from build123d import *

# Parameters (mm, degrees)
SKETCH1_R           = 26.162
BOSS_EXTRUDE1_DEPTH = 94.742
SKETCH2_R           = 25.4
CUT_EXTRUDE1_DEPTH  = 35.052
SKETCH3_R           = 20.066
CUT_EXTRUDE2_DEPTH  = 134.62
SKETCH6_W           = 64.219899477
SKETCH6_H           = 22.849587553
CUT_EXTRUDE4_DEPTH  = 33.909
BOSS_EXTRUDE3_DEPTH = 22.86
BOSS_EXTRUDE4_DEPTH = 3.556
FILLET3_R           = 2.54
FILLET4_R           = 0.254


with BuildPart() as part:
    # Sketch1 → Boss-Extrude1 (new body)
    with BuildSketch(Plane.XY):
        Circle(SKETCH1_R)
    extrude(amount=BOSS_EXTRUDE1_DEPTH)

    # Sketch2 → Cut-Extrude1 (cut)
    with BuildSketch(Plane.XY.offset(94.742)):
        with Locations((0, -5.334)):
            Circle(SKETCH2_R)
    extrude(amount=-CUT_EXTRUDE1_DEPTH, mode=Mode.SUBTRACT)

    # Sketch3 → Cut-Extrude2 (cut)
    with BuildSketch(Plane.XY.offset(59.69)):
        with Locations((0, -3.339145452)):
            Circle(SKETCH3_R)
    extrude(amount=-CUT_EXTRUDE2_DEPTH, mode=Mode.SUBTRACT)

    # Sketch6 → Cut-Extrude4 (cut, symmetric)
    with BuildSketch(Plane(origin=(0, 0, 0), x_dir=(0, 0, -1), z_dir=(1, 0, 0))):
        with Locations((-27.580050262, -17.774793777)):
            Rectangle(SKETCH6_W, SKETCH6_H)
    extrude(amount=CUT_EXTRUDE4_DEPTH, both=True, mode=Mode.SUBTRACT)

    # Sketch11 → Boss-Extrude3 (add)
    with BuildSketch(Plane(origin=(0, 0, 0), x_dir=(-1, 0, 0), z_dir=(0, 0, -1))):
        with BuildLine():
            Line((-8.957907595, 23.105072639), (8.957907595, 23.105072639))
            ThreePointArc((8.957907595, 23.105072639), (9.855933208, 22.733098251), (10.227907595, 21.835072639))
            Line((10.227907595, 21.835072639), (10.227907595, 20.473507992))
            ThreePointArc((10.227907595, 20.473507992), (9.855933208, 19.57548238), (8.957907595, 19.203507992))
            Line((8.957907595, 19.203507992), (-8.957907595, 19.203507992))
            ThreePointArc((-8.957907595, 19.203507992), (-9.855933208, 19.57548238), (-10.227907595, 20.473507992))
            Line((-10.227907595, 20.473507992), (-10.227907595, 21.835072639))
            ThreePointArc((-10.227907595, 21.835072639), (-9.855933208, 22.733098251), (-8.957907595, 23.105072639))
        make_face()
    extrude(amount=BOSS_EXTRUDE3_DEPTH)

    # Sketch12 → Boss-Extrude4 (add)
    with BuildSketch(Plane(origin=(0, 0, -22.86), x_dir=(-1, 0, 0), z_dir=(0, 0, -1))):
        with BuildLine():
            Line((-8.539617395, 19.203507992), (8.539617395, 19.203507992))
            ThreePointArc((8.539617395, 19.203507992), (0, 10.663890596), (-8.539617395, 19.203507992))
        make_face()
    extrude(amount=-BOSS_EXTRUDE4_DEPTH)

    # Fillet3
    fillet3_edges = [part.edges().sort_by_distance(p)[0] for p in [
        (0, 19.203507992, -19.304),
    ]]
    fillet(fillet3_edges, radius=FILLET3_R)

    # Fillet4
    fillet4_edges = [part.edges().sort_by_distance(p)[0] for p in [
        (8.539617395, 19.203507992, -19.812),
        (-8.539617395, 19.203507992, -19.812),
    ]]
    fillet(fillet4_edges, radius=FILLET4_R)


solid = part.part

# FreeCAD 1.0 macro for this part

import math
import FreeCAD as App
import Part
import Sketcher
from FreeCAD import Vector
Q = App.Units.Quantity


def edges_at(feature, points):
    """Names of the edges that pass closest to the given points."""
    edges = feature.Shape.Edges
    near = lambda p: min(range(len(edges)), key=lambda i: edges[i].distToShape(Part.Vertex(*p))[0])
    return sorted({f"Edge{near(p) + 1}" for p in points})

doc = App.newDocument("Part")
body = doc.addObject("PartDesign::Body", "Body")

sketch1 = body.newObject("Sketcher::SketchObject", "Sketch")
sketch1.AttachmentSupport = (doc.getObject("XY_Plane"), [""])
sketch1.MapMode = "FlatFace"
sketch1.addGeometry(Part.Circle(Vector(0, 0, 0), Vector(0, 0, 1), 26.162), False)
sketch1.addConstraint([
    Sketcher.Constraint("Coincident", 0, 3, -1, 1),
    Sketcher.Constraint("Diameter", 0, Q("2.06 in")),
])
pad1 = body.newObject("PartDesign::Pad", "Pad")
pad1.Profile = sketch1
pad1.Length = Q("3.73 in")

sketch2 = body.newObject("Sketcher::SketchObject", "Sketch001")
sketch2.AttachmentSupport = (doc.getObject("XY_Plane"), [""])
sketch2.MapMode = "FlatFace"
sketch2.AttachmentOffset = App.Placement(Vector(0, 0, 3.73 * 25.4), App.Rotation())
sketch2.addGeometry(Part.Circle(Vector(0, -5.334, 0), Vector(0, 0, 1), 25.4), False)
sketch2.addConstraint([
    Sketcher.Constraint("PointOnObject", 0, 3, -2),
    Sketcher.Constraint("Diameter", 0, Q("2 in")),
    Sketcher.Constraint("DistanceY", 0, 3, -1, 1, Q("0.21 in")),
])
pocket1 = body.newObject("PartDesign::Pocket", "Pocket")
pocket1.Profile = sketch2
pocket1.Length = Q("1.38 in")

sketch3 = body.newObject("Sketcher::SketchObject", "Sketch002")
sketch3.AttachmentSupport = (doc.getObject("XY_Plane"), [""])
sketch3.MapMode = "FlatFace"
sketch3.AttachmentOffset = App.Placement(Vector(0, 0, 2.35 * 25.4), App.Rotation())
sketch3.addGeometry(Part.Circle(Vector(0, -3.339145, 0), Vector(0, 0, 1), 20.066), False)
sketch3.addConstraint([
    Sketcher.Constraint("PointOnObject", 0, 3, -2),
    Sketcher.Constraint("Diameter", 0, Q("1.58 in")),
    Sketcher.Constraint("DistanceY", 0, 3, -1, 1, 3.339145),
])
pocket2 = body.newObject("PartDesign::Pocket", "Pocket001")
pocket2.Profile = sketch3
pocket2.Length = Q("5.3 in")

sketch4 = body.newObject("Sketcher::SketchObject", "Sketch003")
sketch4.AttachmentSupport = (doc.getObject("YZ_Plane"), [""])
sketch4.MapMode = "FlatFace"
sketch4.addGeometry([
    Part.LineSegment(Vector(-6.35, 59.69, 0), Vector(-29.199588, 59.69, 0)),
    Part.LineSegment(Vector(-29.199588, 59.69, 0), Vector(-29.199588, -4.529899, 0)),
    Part.LineSegment(Vector(-29.199588, -4.529899, 0), Vector(-6.35, -4.529899, 0)),
    Part.LineSegment(Vector(-6.35, -4.529899, 0), Vector(-6.35, 59.69, 0)),
], False)
sketch4.addConstraint([
    Sketcher.Constraint("Coincident", 0, 2, 1, 1),
    Sketcher.Constraint("Coincident", 1, 2, 2, 1),
    Sketcher.Constraint("Coincident", 2, 2, 3, 1),
    Sketcher.Constraint("Coincident", 3, 2, 0, 1),
    Sketcher.Constraint("Horizontal", 0),
    Sketcher.Constraint("Vertical", 1),
    Sketcher.Constraint("Horizontal", 2),
    Sketcher.Constraint("Vertical", 3),
    Sketcher.Constraint("DistanceY", -1, 1, 0, 2, Q("2.35 in")),
    Sketcher.Constraint("DistanceX", 2, 2, -1, 1, Q("0.25 in")),
    Sketcher.Constraint("DistanceY", 1, 2, 1, 1, 64.219899),
    Sketcher.Constraint("DistanceX", 0, 2, 0, 1, 22.849588),
])
pocket3 = body.newObject("PartDesign::Pocket", "Pocket002")
pocket3.Profile = sketch4
pocket3.Length = Q("2.67 in")
pocket3.Midplane = True

sketch5 = body.newObject("Sketcher::SketchObject", "Sketch004")
sketch5.AttachmentSupport = (doc.getObject("XY_Plane"), [""])
sketch5.MapMode = "FlatFace"
sketch5.addGeometry([
    Part.LineSegment(Vector(-8.957908, 23.105073, 0), Vector(8.957908, 23.105073, 0)),
    Part.ArcOfCircle(Part.Circle(Vector(8.957908, 21.835073, 0), Vector(0, 0, 1), 1.27), math.radians(0), math.radians(90)),
    Part.LineSegment(Vector(10.227908, 21.835073, 0), Vector(10.227908, 20.473508, 0)),
    Part.ArcOfCircle(Part.Circle(Vector(8.957908, 20.473508, 0), Vector(0, 0, 1), 1.27), math.radians(-90), math.radians(0)),
    Part.LineSegment(Vector(8.957908, 19.203508, 0), Vector(-8.957908, 19.203508, 0)),
    Part.ArcOfCircle(Part.Circle(Vector(-8.957908, 20.473508, 0), Vector(0, 0, 1), 1.27), math.radians(180), math.radians(270)),
    Part.LineSegment(Vector(-10.227908, 20.473508, 0), Vector(-10.227908, 21.835073, 0)),
    Part.ArcOfCircle(Part.Circle(Vector(-8.957908, 21.835073, 0), Vector(0, 0, 1), 1.27), math.radians(90), math.radians(180)),
], False)
sketch5.addConstraint([
    Sketcher.Constraint("Tangent", 0, 2, 1, 2),
    Sketcher.Constraint("Tangent", 1, 1, 2, 1),
    Sketcher.Constraint("Tangent", 2, 2, 3, 2),
    Sketcher.Constraint("Tangent", 3, 1, 4, 1),
    Sketcher.Constraint("Tangent", 4, 2, 5, 2),
    Sketcher.Constraint("Tangent", 5, 1, 6, 1),
    Sketcher.Constraint("Tangent", 6, 2, 7, 2),
    Sketcher.Constraint("Tangent", 7, 1, 0, 1),
    Sketcher.Constraint("Horizontal", 0),
    Sketcher.Constraint("Vertical", 2),
    Sketcher.Constraint("Horizontal", 4),
    Sketcher.Constraint("Vertical", 6),
    Sketcher.Constraint("Equal", 1, 3),
    Sketcher.Constraint("Equal", 3, 5),
    Sketcher.Constraint("Equal", 5, 7),
    Sketcher.Constraint("Radius", 1, Q("0.05 in")),
    Sketcher.Constraint("DistanceX", 0, 1, 0, 2, 17.915815),
    Sketcher.Constraint("DistanceY", 2, 2, 2, 1, 1.361565),
    Sketcher.Constraint("DistanceX", -1, 1, 1, 3, 8.957908),
    Sketcher.Constraint("DistanceY", -1, 1, 1, 3, 21.835073),
])
pad2 = body.newObject("PartDesign::Pad", "Pad001")
pad2.Profile = sketch5
pad2.Length = Q("0.9 in")
pad2.Reversed = True

sketch6 = body.newObject("Sketcher::SketchObject", "Sketch005")
sketch6.AttachmentSupport = (doc.getObject("XY_Plane"), [""])
sketch6.MapMode = "FlatFace"
sketch6.AttachmentOffset = App.Placement(Vector(0, 0, -0.9 * 25.4), App.Rotation())
sketch6.addGeometry([
    Part.LineSegment(Vector(-8.539617, 19.203508, 0), Vector(8.539617, 19.203508, 0)),
    Part.ArcOfCircle(Part.Circle(Vector(0, 19.203508, 0), Vector(0, 0, 1), 8.539617), math.radians(180), math.radians(360)),
], False)
sketch6.addConstraint([
    Sketcher.Constraint("Coincident", 0, 1, 1, 1),
    Sketcher.Constraint("Coincident", 1, 2, 0, 2),
    Sketcher.Constraint("Horizontal", 0),
    Sketcher.Constraint("PointOnObject", 1, 3, -2),
    Sketcher.Constraint("Horizontal", 1, 3, 0, 1),
    Sketcher.Constraint("Radius", 1, 8.539617),
    Sketcher.Constraint("DistanceY", -1, 1, 1, 3, 19.203508),
])
pad3 = body.newObject("PartDesign::Pad", "Pad002")
pad3.Profile = sketch6
pad3.Length = Q("0.14 in")
doc.recompute()

fillet = body.newObject("PartDesign::Fillet", "Fillet")
fillet.Base = (pad3, edges_at(pad3, [(0, 19.204, -19.304)]))
fillet.Radius = Q("0.1 in")
doc.recompute()

fillet2 = body.newObject("PartDesign::Fillet", "Fillet001")
fillet2.Base = (fillet, edges_at(fillet, [(8.54, 19.204, -19.812), (-8.54, 19.204, -19.812)]))
fillet2.Radius = Q("0.01 in")

doc.recompute()
